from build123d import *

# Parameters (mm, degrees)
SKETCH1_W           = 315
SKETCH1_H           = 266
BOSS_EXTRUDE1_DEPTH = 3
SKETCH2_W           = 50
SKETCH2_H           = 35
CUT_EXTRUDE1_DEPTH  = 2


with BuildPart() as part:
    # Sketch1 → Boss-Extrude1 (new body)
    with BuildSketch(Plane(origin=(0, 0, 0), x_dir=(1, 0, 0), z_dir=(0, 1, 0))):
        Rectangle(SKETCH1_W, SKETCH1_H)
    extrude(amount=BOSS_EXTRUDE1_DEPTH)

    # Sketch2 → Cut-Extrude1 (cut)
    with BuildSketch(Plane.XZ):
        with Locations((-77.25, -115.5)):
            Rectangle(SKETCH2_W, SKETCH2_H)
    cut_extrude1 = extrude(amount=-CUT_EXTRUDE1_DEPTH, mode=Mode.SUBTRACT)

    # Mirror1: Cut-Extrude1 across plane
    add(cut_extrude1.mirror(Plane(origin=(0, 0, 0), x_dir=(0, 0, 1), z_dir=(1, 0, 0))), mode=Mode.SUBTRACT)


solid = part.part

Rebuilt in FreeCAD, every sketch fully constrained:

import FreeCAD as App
import Part
import Sketcher
Q = App.Units.Quantity

doc = App.newDocument("Part")
params = doc.addObject("Spreadsheet::Sheet", "Params")
for row, (alias, value) in enumerate([
    ("sketch1_width", "315 mm"),
    ("sketch1_height", "266 mm"),
    ("pad1_length", "3 mm"),
    ("sketch2_width", "50 mm"),
    ("sketch2_height", "35 mm"),
    ("pocket1_length", "2 mm"),
], start=1):
    params.set(f"A{row}", alias)
    params.set(f"B{row}", "=" + value)
    params.setAlias(f"B{row}", alias)

body = doc.addObject("PartDesign::Body", "Body")

sketch1 = body.newObject("Sketcher::SketchObject", "Sketch")
sketch1.AttachmentSupport = (doc.getObject("XZ_Plane"), [""])
sketch1.MapMode = "FlatFace"
sketch1.addGeometry([
    Part.LineSegment(App.Vector(-158, -133, 0), App.Vector(-158, 133, 0)),
    Part.LineSegment(App.Vector(-158, 133, 0), App.Vector(158, 133, 0)),
    Part.LineSegment(App.Vector(158, 133, 0), App.Vector(158, -133, 0)),
    Part.LineSegment(App.Vector(158, -133, 0), App.Vector(-158, -133, 0)),
], False)
sketch1.addConstraint([
    Sketcher.Constraint("Coincident", 0, 2, 1, 1),
    Sketcher.Constraint("Coincident", 1, 2, 2, 1),
    Sketcher.Constraint("Coincident", 2, 2, 3, 1),
    Sketcher.Constraint("Coincident", 3, 2, 0, 1),
    Sketcher.Constraint("Vertical", 0),
    Sketcher.Constraint("Horizontal", 1),
    Sketcher.Constraint("Vertical", 2),
    Sketcher.Constraint("Horizontal", 3),
    Sketcher.Constraint("Symmetric", 0, 2, 2, 2, -1, 1),
    Sketcher.Constraint("DistanceX", 1, 1, 1, 2, Q("315 mm")),
    Sketcher.Constraint("DistanceY", 0, 1, 0, 2, Q("266 mm")),
])
sketch1.setExpression("Constraints[9]", "Params.sketch1_width")
sketch1.setExpression("Constraints[10]", "Params.sketch1_height")
pad1 = body.newObject("PartDesign::Pad", "Pad")
pad1.Profile = sketch1
pad1.setExpression("Length", "Params.pad1_length")
pad1.Reversed = True

sketch2 = body.newObject("Sketcher::SketchObject", "Sketch001")
sketch2.AttachmentSupport = (doc.getObject("XZ_Plane"), [""])
sketch2.MapMode = "FlatFace"
sketch2.addGeometry([
    Part.LineSegment(App.Vector(-102, -98, 0), App.Vector(-102, -133, 0)),
    Part.LineSegment(App.Vector(-102, -133, 0), App.Vector(-52, -133, 0)),
    Part.LineSegment(App.Vector(-52, -133, 0), App.Vector(-52, -98, 0)),
    Part.LineSegment(App.Vector(-52, -98, 0), App.Vector(-102, -98, 0)),
], False)
sketch2.addConstraint([
    Sketcher.Constraint("Coincident", 0, 2, 1, 1),
    Sketcher.Constraint("Coincident", 1, 2, 2, 1),
    Sketcher.Constraint("Coincident", 2, 2, 3, 1),
    Sketcher.Constraint("Coincident", 3, 2, 0, 1),
    Sketcher.Constraint("Vertical", 0),
    Sketcher.Constraint("Horizontal", 1),
    Sketcher.Constraint("Vertical", 2),
    Sketcher.Constraint("Horizontal", 3),
    Sketcher.Constraint("DistanceX", 1, 1, 1, 2, Q("50 mm")),
    Sketcher.Constraint("DistanceY", 0, 2, 0, 1, Q("35 mm")),
    Sketcher.Constraint("DistanceY", 0, 2, -1, 1, Q("133 mm")),
    Sketcher.Constraint("DistanceX", 0, 2, -1, 1, Q("102.25 mm")),
])
sketch2.setExpression("Constraints[8]", "Params.sketch2_width")
sketch2.setExpression("Constraints[9]", "Params.sketch2_height")
pocket1 = body.newObject("PartDesign::Pocket", "Pocket")
pocket1.Profile = sketch2
pocket1.setExpression("Length", "Params.pocket1_length")
doc.recompute()

mirrored = body.newObject("PartDesign::Mirrored", "Mirrored")
mirrored.Originals = [pocket1]
mirrored.MirrorPlane = (doc.getObject("YZ_Plane"), [""])
body.Tip = mirrored

doc.recompute()
